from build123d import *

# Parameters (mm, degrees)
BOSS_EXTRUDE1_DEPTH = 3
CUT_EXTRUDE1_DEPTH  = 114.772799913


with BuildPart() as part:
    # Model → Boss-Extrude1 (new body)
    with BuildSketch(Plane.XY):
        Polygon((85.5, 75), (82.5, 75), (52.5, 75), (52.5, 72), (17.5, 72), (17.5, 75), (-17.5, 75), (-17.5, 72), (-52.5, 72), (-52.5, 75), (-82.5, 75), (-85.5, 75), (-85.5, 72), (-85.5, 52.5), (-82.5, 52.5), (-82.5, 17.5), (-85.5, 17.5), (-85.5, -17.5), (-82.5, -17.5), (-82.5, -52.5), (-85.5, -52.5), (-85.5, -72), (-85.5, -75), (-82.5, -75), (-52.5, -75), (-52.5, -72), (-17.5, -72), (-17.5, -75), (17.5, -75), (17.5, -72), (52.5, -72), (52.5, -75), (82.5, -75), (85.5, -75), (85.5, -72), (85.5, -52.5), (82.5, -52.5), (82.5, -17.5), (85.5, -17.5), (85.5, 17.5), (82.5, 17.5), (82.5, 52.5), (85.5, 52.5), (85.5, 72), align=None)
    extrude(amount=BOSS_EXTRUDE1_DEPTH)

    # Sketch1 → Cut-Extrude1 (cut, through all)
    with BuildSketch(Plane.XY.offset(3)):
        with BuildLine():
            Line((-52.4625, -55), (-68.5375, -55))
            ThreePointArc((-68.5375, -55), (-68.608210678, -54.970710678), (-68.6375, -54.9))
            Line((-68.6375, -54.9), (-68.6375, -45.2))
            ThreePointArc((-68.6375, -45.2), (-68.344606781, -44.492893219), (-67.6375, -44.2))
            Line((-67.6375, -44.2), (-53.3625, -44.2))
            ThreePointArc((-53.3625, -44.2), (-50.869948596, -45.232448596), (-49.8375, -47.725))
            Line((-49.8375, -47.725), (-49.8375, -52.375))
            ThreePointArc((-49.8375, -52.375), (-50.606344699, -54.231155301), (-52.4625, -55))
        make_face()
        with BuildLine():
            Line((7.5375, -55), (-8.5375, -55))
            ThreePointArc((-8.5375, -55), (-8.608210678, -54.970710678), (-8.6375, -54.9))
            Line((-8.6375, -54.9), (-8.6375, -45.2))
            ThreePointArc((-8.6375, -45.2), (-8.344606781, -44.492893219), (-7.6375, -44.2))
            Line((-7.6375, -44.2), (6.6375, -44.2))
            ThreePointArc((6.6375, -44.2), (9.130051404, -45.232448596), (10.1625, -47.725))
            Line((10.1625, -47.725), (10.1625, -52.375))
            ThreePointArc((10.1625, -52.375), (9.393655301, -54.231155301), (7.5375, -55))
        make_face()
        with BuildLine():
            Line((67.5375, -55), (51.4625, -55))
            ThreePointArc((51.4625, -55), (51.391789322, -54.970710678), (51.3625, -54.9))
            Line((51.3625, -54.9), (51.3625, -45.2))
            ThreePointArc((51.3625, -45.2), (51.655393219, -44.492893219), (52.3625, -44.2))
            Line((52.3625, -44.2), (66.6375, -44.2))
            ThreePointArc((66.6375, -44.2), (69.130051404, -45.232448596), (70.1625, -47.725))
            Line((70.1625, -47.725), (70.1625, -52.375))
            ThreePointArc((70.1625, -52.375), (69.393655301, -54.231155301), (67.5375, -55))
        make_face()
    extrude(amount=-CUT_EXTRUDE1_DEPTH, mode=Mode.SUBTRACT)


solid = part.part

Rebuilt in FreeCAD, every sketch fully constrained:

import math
import FreeCAD as App
import Part
import Sketcher
Q = App.Units.Quantity

doc = App.newDocument("Part")
body = doc.addObject("PartDesign::Body", "Body")

# Sketch on XY plane
sketch1 = body.newObject("Sketcher::SketchObject", "Sketch")
sketch1.AttachmentSupport = (doc.getObject("XY_Plane"), [""])
sketch1.MapMode = "FlatFace"
sketch1.addGeometry(Part.LineSegment(App.Vector(85.5, 75, 0), App.Vector(52.5, 75, 0)), False)
sketch1.addGeometry(Part.LineSegment(App.Vector(52.5, 75, 0), App.Vector(52.5, 72, 0)), False)
sketch1.addGeometry(Part.LineSegment(App.Vector(52.5, 72, 0), App.Vector(17.5, 72, 0)), False)
sketch1.addGeometry(Part.LineSegment(App.Vector(17.5, 72, 0), App.Vector(17.5, 75, 0)), False)
sketch1.addGeometry(Part.LineSegment(App.Vector(17.5, 75, 0), App.Vector(-17.5, 75, 0)), False)
sketch1.addGeometry(Part.LineSegment(App.Vector(-17.5, 75, 0), App.Vector(-17.5, 72, 0)), False)
sketch1.addGeometry(Part.LineSegment(App.Vector(-17.5, 72, 0), App.Vector(-52.5, 72, 0)), False)
sketch1.addGeometry(Part.LineSegment(App.Vector(-52.5, 72, 0), App.Vector(-52.5, 75, 0)), False)
sketch1.addGeometry(Part.LineSegment(App.Vector(-52.5, 75, 0), App.Vector(-85.5, 75, 0)), False)
sketch1.addGeometry(Part.LineSegment(App.Vector(-85.5, 75, 0), App.Vector(-85.5, 52.5, 0)), False)
sketch1.addGeometry(Part.LineSegment(App.Vector(-85.5, 52.5, 0), App.Vector(-82.5, 52.5, 0)), False)
sketch1.addGeometry(Part.LineSegment(App.Vector(-82.5, 52.5, 0), App.Vector(-82.5, 17.5, 0)), False)
sketch1.addGeometry(Part.LineSegment(App.Vector(-82.5, 17.5, 0), App.Vector(-85.5, 17.5, 0)), False)
sketch1.addGeometry(Part.LineSegment(App.Vector(-85.5, 17.5, 0), App.Vector(-85.5, -17.5, 0)), False)
sketch1.addGeometry(Part.LineSegment(App.Vector(-85.5, -17.5, 0), App.Vector(-82.5, -17.5, 0)), False)
sketch1.addGeometry(Part.LineSegment(App.Vector(-82.5, -17.5, 0), App.Vector(-82.5, -52.5, 0)), False)
sketch1.addGeometry(Part.LineSegment(App.Vector(-82.5, -52.5, 0), App.Vector(-85.5, -52.5, 0)), False)
sketch1.addGeometry(Part.LineSegment(App.Vector(-85.5, -52.5, 0), App.Vector(-85.5, -75, 0)), False)
sketch1.addGeometry(Part.LineSegment(App.Vector(-85.5, -75, 0), App.Vector(-52.5, -75, 0)), False)
sketch1.addGeometry(Part.LineSegment(App.Vector(-52.5, -75, 0), App.Vector(-52.5, -72, 0)), False)
sketch1.addGeometry(Part.LineSegment(App.Vector(-52.5, -72, 0), App.Vector(-17.5, -72, 0)), False)
sketch1.addGeometry(Part.LineSegment(App.Vector(-17.5, -72, 0), App.Vector(-17.5, -75, 0)), False)
sketch1.addGeometry(Part.LineSegment(App.Vector(-17.5, -75, 0), App.Vector(17.5, -75, 0)), False)
sketch1.addGeometry(Part.LineSegment(App.Vector(17.5, -75, 0), App.Vector(17.5, -72, 0)), False)
sketch1.addGeometry(Part.LineSegment(App.Vector(17.5, -72, 0), App.Vector(52.5, -72, 0)), False)
sketch1.addGeometry(Part.LineSegment(App.Vector(52.5, -72, 0), App.Vector(52.5, -75, 0)), False)
sketch1.addGeometry(Part.LineSegment(App.Vector(52.5, -75, 0), App.Vector(85.5, -75, 0)), False)
sketch1.addGeometry(Part.LineSegment(App.Vector(85.5, -75, 0), App.Vector(85.5, -52.5, 0)), False)
sketch1.addGeometry(Part.LineSegment(App.Vector(85.5, -52.5, 0), App.Vector(82.5, -52.5, 0)), False)
sketch1.addGeometry(Part.LineSegment(App.Vector(82.5, -52.5, 0), App.Vector(82.5, -17.5, 0)), False)
sketch1.addGeometry(Part.LineSegment(App.Vector(82.5, -17.5, 0), App.Vector(85.5, -17.5, 0)), False)
sketch1.addGeometry(Part.LineSegment(App.Vector(85.5, -17.5, 0), App.Vector(85.5, 17.5, 0)), False)
sketch1.addGeometry(Part.LineSegment(App.Vector(85.5, 17.5, 0), App.Vector(82.5, 17.5, 0)), False)
sketch1.addGeometry(Part.LineSegment(App.Vector(82.5, 17.5, 0), App.Vector(82.5, 52.5, 0)), False)
sketch1.addGeometry(Part.LineSegment(App.Vector(82.5, 52.5, 0), App.Vector(85.5, 52.5, 0)), False)
sketch1.addGeometry(Part.LineSegment(App.Vector(85.5, 52.5, 0), App.Vector(85.5, 75, 0)), False)
sketch1.addConstraint(Sketcher.Constraint("Coincident", 0, 2, 1, 1))
sketch1.addConstraint(Sketcher.Constraint("Coincident", 1, 2, 2, 1))
sketch1.addConstraint(Sketcher.Constraint("Coincident", 2, 2, 3, 1))
sketch1.addConstraint(Sketcher.Constraint("Coincident", 3, 2, 4, 1))
sketch1.addConstraint(Sketcher.Constraint("Coincident", 4, 2, 5, 1))
sketch1.addConstraint(Sketcher.Constraint("Coincident", 5, 2, 6, 1))
sketch1.addConstraint(Sketcher.Constraint("Coincident", 6, 2, 7, 1))
sketch1.addConstraint(Sketcher.Constraint("Coincident", 7, 2, 8, 1))
sketch1.addConstraint(Sketcher.Constraint("Coincident", 8, 2, 9, 1))
sketch1.addConstraint(Sketcher.Constraint("Coincident", 9, 2, 10, 1))
sketch1.addConstraint(Sketcher.Constraint("Coincident", 10, 2, 11, 1))
sketch1.addConstraint(Sketcher.Constraint("Coincident", 11, 2, 12, 1))
sketch1.addConstraint(Sketcher.Constraint("Coincident", 12, 2, 13, 1))
sketch1.addConstraint(Sketcher.Constraint("Coincident", 13, 2, 14, 1))
sketch1.addConstraint(Sketcher.Constraint("Coincident", 14, 2, 15, 1))
sketch1.addConstraint(Sketcher.Constraint("Coincident", 15, 2, 16, 1))
sketch1.addConstraint(Sketcher.Constraint("Coincident", 16, 2, 17, 1))
sketch1.addConstraint(Sketcher.Constraint("Coincident", 17, 2, 18, 1))
sketch1.addConstraint(Sketcher.Constraint("Coincident", 18, 2, 19, 1))
sketch1.addConstraint(Sketcher.Constraint("Coincident", 19, 2, 20, 1))
sketch1.addConstraint(Sketcher.Constraint("Coincident", 20, 2, 21, 1))
sketch1.addConstraint(Sketcher.Constraint("Coincident", 21, 2, 22, 1))
sketch1.addConstraint(Sketcher.Constraint("Coincident", 22, 2, 23, 1))
sketch1.addConstraint(Sketcher.Constraint("Coincident", 23, 2, 24, 1))
sketch1.addConstraint(Sketcher.Constraint("Coincident", 24, 2, 25, 1))
sketch1.addConstraint(Sketcher.Constraint("Coincident", 25, 2, 26, 1))
sketch1.addConstraint(Sketcher.Constraint("Coincident", 26, 2, 27, 1))
sketch1.addConstraint(Sketcher.Constraint("Coincident", 27, 2, 28, 1))
sketch1.addConstraint(Sketcher.Constraint("Coincident", 28, 2, 29, 1))
sketch1.addConstraint(Sketcher.Constraint("Coincident", 29, 2, 30, 1))
sketch1.addConstraint(Sketcher.Constraint("Coincident", 30, 2, 31, 1))
sketch1.addConstraint(Sketcher.Constraint("Coincident", 31, 2, 32, 1))
sketch1.addConstraint(Sketcher.Constraint("Coincident", 32, 2, 33, 1))
sketch1.addConstraint(Sketcher.Constraint("Coincident", 33, 2, 34, 1))
sketch1.addConstraint(Sketcher.Constraint("Coincident", 34, 2, 35, 1))
sketch1.addConstraint(Sketcher.Constraint("Coincident", 35, 2, 0, 1))
sketch1.addConstraint(Sketcher.Constraint("Horizontal", 0))
sketch1.addConstraint(Sketcher.Constraint("Vertical", 1))
sketch1.addConstraint(Sketcher.Constraint("Horizontal", 2))
sketch1.addConstraint(Sketcher.Constraint("Vertical", 3))
sketch1.addConstraint(Sketcher.Constraint("Horizontal", 4))
sketch1.addConstraint(Sketcher.Constraint("Vertical", 5))
sketch1.addConstraint(Sketcher.Constraint("Horizontal", 6))
sketch1.addConstraint(Sketcher.Constraint("Vertical", 7))
sketch1.addConstraint(Sketcher.Constraint("Horizontal", 8))
sketch1.addConstraint(Sketcher.Constraint("Vertical", 9))
sketch1.addConstraint(Sketcher.Constraint("Horizontal", 10))
sketch1.addConstraint(Sketcher.Constraint("Vertical", 11))
sketch1.addConstraint(Sketcher.Constraint("Horizontal", 12))
sketch1.addConstraint(Sketcher.Constraint("Vertical", 13))
sketch1.addConstraint(Sketcher.Constraint("Horizontal", 14))
sketch1.addConstraint(Sketcher.Constraint("Vertical", 15))
sketch1.addConstraint(Sketcher.Constraint("Horizontal", 16))
sketch1.addConstraint(Sketcher.Constraint("Vertical", 17))
sketch1.addConstraint(Sketcher.Constraint("Horizontal", 18))
sketch1.addConstraint(Sketcher.Constraint("Vertical", 19))
sketch1.addConstraint(Sketcher.Constraint("Horizontal", 20))
sketch1.addConstraint(Sketcher.Constraint("Vertical", 21))
sketch1.addConstraint(Sketcher.Constraint("Horizontal", 22))
sketch1.addConstraint(Sketcher.Constraint("Vertical", 23))
sketch1.addConstraint(Sketcher.Constraint("Horizontal", 24))
sketch1.addConstraint(Sketcher.Constraint("Vertical", 25))
sketch1.addConstraint(Sketcher.Constraint("Horizontal", 26))
sketch1.addConstraint(Sketcher.Constraint("Vertical", 27))
sketch1.addConstraint(Sketcher.Constraint("Horizontal", 28))
sketch1.addConstraint(Sketcher.Constraint("Vertical", 29))
sketch1.addConstraint(Sketcher.Constraint("Horizontal", 30))
sketch1.addConstraint(Sketcher.Constraint("Vertical", 31))
sketch1.addConstraint(Sketcher.Constraint("Horizontal", 32))
sketch1.addConstraint(Sketcher.Constraint("Vertical", 33))
sketch1.addConstraint(Sketcher.Constraint("Horizontal", 34))
sketch1.addConstraint(Sketcher.Constraint("Vertical", 35))
sketch1.addConstraint(Sketcher.Constraint("Symmetric", 0, 2, 18, 2, -1, 1))
sketch1.addConstraint(Sketcher.Constraint("Symmetric", 2, 2, 20, 2, -1, 1))
sketch1.addConstraint(Sketcher.Constraint("Symmetric", 4, 2, 22, 2, -1, 1))
sketch1.addConstraint(Sketcher.Constraint("Symmetric", 6, 2, 24, 2, -1, 1))
sketch1.addConstraint(Sketcher.Constraint("Symmetric", 8, 2, 26, 2, -1, 1))
sketch1.addConstraint(Sketcher.Constraint("Symmetric", 10, 2, 28, 2, -1, 1))
sketch1.addConstraint(Sketcher.Constraint("Symmetric", 12, 2, 30, 2, -1, 1))
sketch1.addConstraint(Sketcher.Constraint("Symmetric", 14, 2, 32, 2, -1, 1))
sketch1.addConstraint(Sketcher.Constraint("Symmetric", 16, 2, 34, 2, -1, 1))
sketch1.addConstraint(Sketcher.Constraint("Symmetric", 2, 2, 5, 2, -2))
sketch1.addConstraint(Sketcher.Constraint("Symmetric", 0, 2, 7, 2, -2))
sketch1.addConstraint(Sketcher.Constraint("Symmetric", 16, 2, 27, 2, -2))
sketch1.addConstraint(Sketcher.Constraint("Symmetric", 14, 2, 29, 2, -2))
sketch1.addConstraint(Sketcher.Constraint("Horizontal", 0, 2, 3, 2))
sketch1.addConstraint(Sketcher.Constraint("Vertical", 9, 2, 12, 2))
sketch1.addConstraint(Sketcher.Constraint("Equal", 2, 4))
sketch1.addConstraint(Sketcher.Constraint("Equal", 34, 1))
sketch1.addConstraint(Sketcher.Constraint("Equal", 24, 11))
sketch1.addConstraint(Sketcher.Constraint("Equal", 11, 13))
sketch1.addConstraint(Sketcher.Constraint("DistanceX", 0, 2, 0, 1, Q("33 mm")))
sketch1.addConstraint(Sketcher.Constraint("DistanceX", 2, 2, 2, 1, Q("35 mm")))
sketch1.addConstraint(Sketcher.Constraint("DistanceX", 10, 1, 10, 2, Q("3 mm")))
sketch1.addConstraint(Sketcher.Constraint("DistanceY", 9, 2, 9, 1, Q("22.5 mm")))
pad1 = body.newObject("PartDesign::Pad", "Pad")
pad1.Profile = sketch1
pad1.Length = 3

# Sketch on XY plane
sketch2 = body.newObject("Sketcher::SketchObject", "Sketch001")
sketch2.AttachmentSupport = (doc.getObject("XY_Plane"), [""])
sketch2.MapMode = "FlatFace"
sketch2.AttachmentOffset = App.Placement(App.Vector(0, 0, 3), App.Rotation())
sketch2.addGeometry(Part.LineSegment(App.Vector(-68.54, -55, 0), App.Vector(-52.46, -55, 0)), False)
sketch2.addGeometry(Part.ArcOfCircle(Part.Circle(App.Vector(-52.46, -52.38, 0), App.Vector(0, 0, 1), 2.62), math.radians(-90), math.radians(0)), False)
sketch2.addGeometry(Part.LineSegment(App.Vector(-49.84, -52.38, 0), App.Vector(-49.84, -47.73, 0)), False)
sketch2.addGeometry(Part.ArcOfCircle(Part.Circle(App.Vector(-53.36, -47.72, 0), App.Vector(0, 0, 1), 3.52), math.radians(0), math.radians(90)), False)
sketch2.addGeometry(Part.LineSegment(App.Vector(-53.36, -44.2, 0), App.Vector(-67.64, -44.2, 0)), False)
sketch2.addGeometry(Part.ArcOfCircle(Part.Circle(App.Vector(-67.64, -45.2, 0), App.Vector(0, 0, 1), 1), math.radians(90), math.radians(180)), False)
sketch2.addGeometry(Part.LineSegment(App.Vector(-68.64, -45.2, 0), App.Vector(-68.64, -54.9, 0)), False)
sketch2.addGeometry(Part.ArcOfCircle(Part.Circle(App.Vector(-68.54, -54.9, 0), App.Vector(0, 0, 1), 0.1), math.radians(180), math.radians(270)), False)
sketch2.addGeometry(Part.LineSegment(App.Vector(-8.54, -55, 0), App.Vector(7.54, -55, 0)), False)
sketch2.addGeometry(Part.ArcOfCircle(Part.Circle(App.Vector(7.54, -52.38, 0), App.Vector(0, 0, 1), 2.62), math.radians(-90), math.radians(0)), False)
sketch2.addGeometry(Part.LineSegment(App.Vector(10.16, -52.38, 0), App.Vector(10.16, -47.73, 0)), False)
sketch2.addGeometry(Part.ArcOfCircle(Part.Circle(App.Vector(6.64, -47.72, 0), App.Vector(0, 0, 1), 3.52), math.radians(0), math.radians(90)), False)
sketch2.addGeometry(Part.LineSegment(App.Vector(6.64, -44.2, 0), App.Vector(-7.64, -44.2, 0)), False)
sketch2.addGeometry(Part.ArcOfCircle(Part.Circle(App.Vector(-7.64, -45.2, 0), App.Vector(0, 0, 1), 1), math.radians(90), math.radians(180)), False)
sketch2.addGeometry(Part.LineSegment(App.Vector(-8.64, -45.2, 0), App.Vector(-8.64, -54.9, 0)), False)
sketch2.addGeometry(Part.ArcOfCircle(Part.Circle(App.Vector(-8.54, -54.9, 0), App.Vector(0, 0, 1), 0.1), math.radians(180), math.radians(270)), False)
sketch2.addGeometry(Part.LineSegment(App.Vector(51.46, -55, 0), App.Vector(67.54, -55, 0)), False)
sketch2.addGeometry(Part.ArcOfCircle(Part.Circle(App.Vector(67.54, -52.38, 0), App.Vector(0, 0, 1), 2.62), math.radians(-90), math.radians(0)), False)
sketch2.addGeometry(Part.LineSegment(App.Vector(70.16, -52.38, 0), App.Vector(70.16, -47.73, 0)), False)
sketch2.addGeometry(Part.ArcOfCircle(Part.Circle(App.Vector(66.64, -47.72, 0), App.Vector(0, 0, 1), 3.52), math.radians(0), math.radians(90)), False)
sketch2.addGeometry(Part.LineSegment(App.Vector(66.64, -44.2, 0), App.Vector(52.36, -44.2, 0)), False)
sketch2.addGeometry(Part.ArcOfCircle(Part.Circle(App.Vector(52.36, -45.2, 0), App.Vector(0, 0, 1), 1), math.radians(90), math.radians(180)), False)
sketch2.addGeometry(Part.LineSegment(App.Vector(51.36, -45.2, 0), App.Vector(51.36, -54.9, 0)), False)
sketch2.addGeometry(Part.ArcOfCircle(Part.Circle(App.Vector(51.46, -54.9, 0), App.Vector(0, 0, 1), 0.1), math.radians(180), math.radians(270)), False)
sketch2.addConstraint(Sketcher.Constraint("Tangent", 0, 2, 1, 1))
sketch2.addConstraint(Sketcher.Constraint("Tangent", 1, 2, 2, 1))
sketch2.addConstraint(Sketcher.Constraint("Tangent", 2, 2, 3, 1))
sketch2.addConstraint(Sketcher.Constraint("Tangent", 3, 2, 4, 1))
sketch2.addConstraint(Sketcher.Constraint("Tangent", 4, 2, 5, 1))
sketch2.addConstraint(Sketcher.Constraint("Tangent", 5, 2, 6, 1))
sketch2.addConstraint(Sketcher.Constraint("Tangent", 6, 2, 7, 1))
sketch2.addConstraint(Sketcher.Constraint("Tangent", 7, 2, 0, 1))
sketch2.addConstraint(Sketcher.Constraint("Tangent", 8, 2, 9, 1))
sketch2.addConstraint(Sketcher.Constraint("Tangent", 9, 2, 10, 1))
sketch2.addConstraint(Sketcher.Constraint("Tangent", 10, 2, 11, 1))
sketch2.addConstraint(Sketcher.Constraint("Tangent", 11, 2, 12, 1))
sketch2.addConstraint(Sketcher.Constraint("Tangent", 12, 2, 13, 1))
sketch2.addConstraint(Sketcher.Constraint("Tangent", 13, 2, 14, 1))
sketch2.addConstraint(Sketcher.Constraint("Tangent", 14, 2, 15, 1))
sketch2.addConstraint(Sketcher.Constraint("Tangent", 15, 2, 8, 1))
sketch2.addConstraint(Sketcher.Constraint("Tangent", 16, 2, 17, 1))
sketch2.addConstraint(Sketcher.Constraint("Tangent", 17, 2, 18, 1))
sketch2.addConstraint(Sketcher.Constraint("Tangent", 18, 2, 19, 1))
sketch2.addConstraint(Sketcher.Constraint("Tangent", 19, 2, 20, 1))
sketch2.addConstraint(Sketcher.Constraint("Tangent", 20, 2, 21, 1))
sketch2.addConstraint(Sketcher.Constraint("Tangent", 21, 2, 22, 1))
sketch2.addConstraint(Sketcher.Constraint("Tangent", 22, 2, 23, 1))
sketch2.addConstraint(Sketcher.Constraint("Tangent", 23, 2, 16, 1))
sketch2.addConstraint(Sketcher.Constraint("Horizontal", 0))
sketch2.addConstraint(Sketcher.Constraint("Vertical", 2))
sketch2.addConstraint(Sketcher.Constraint("Horizontal", 4))
sketch2.addConstraint(Sketcher.Constraint("Vertical", 6))
sketch2.addConstraint(Sketcher.Constraint("Horizontal", 8))
sketch2.addConstraint(Sketcher.Constraint("Vertical", 10))
sketch2.addConstraint(Sketcher.Constraint("Horizontal", 12))
sketch2.addConstraint(Sketcher.Constraint("Vertical", 14))
sketch2.addConstraint(Sketcher.Constraint("Horizontal", 16))
sketch2.addConstraint(Sketcher.Constraint("Vertical", 18))
sketch2.addConstraint(Sketcher.Constraint("Horizontal", 20))
sketch2.addConstraint(Sketcher.Constraint("Vertical", 22))
sketch2.addConstraint(Sketcher.Constraint("Equal", 1, 9))
sketch2.addConstraint(Sketcher.Constraint("Equal", 3, 11))
sketch2.addConstraint(Sketcher.Constraint("Equal", 5, 13))
sketch2.addConstraint(Sketcher.Constraint("Equal", 7, 15))
sketch2.addConstraint(Sketcher.Constraint("Equal", 9, 17))
sketch2.addConstraint(Sketcher.Constraint("Equal", 11, 19))
sketch2.addConstraint(Sketcher.Constraint("Equal", 13, 21))
sketch2.addConstraint(Sketcher.Constraint("Equal", 15, 23))
sketch2.addConstraint(Sketcher.Constraint("Horizontal", 1, 3, 9, 3))
sketch2.addConstraint(Sketcher.Constraint("Horizontal", 3, 3, 11, 3))
sketch2.addConstraint(Sketcher.Constraint("Horizontal", 9, 3, 17, 3))
sketch2.addConstraint(Sketcher.Constraint("Horizontal", 11, 3, 19, 3))
sketch2.addConstraint(Sketcher.Constraint("Equal", 0, 8))
sketch2.addConstraint(Sketcher.Constraint("Equal", 8, 16))
sketch2.addConstraint(Sketcher.Constraint("Radius", 5, Q("1 mm")))
sketch2.addConstraint(Sketcher.Constraint("Radius", 7, Q("0.1 mm")))
sketch2.addConstraint(Sketcher.Constraint("DistanceY", 6, 2, 6, 1, Q("9.7 mm")))
sketch2.addConstraint(Sketcher.Constraint("DistanceY", 0, 2, -1, 1, Q("55 mm")))
sketch2.addConstraint(Sketcher.Constraint("Radius", 1, Q("2.625 mm")))
sketch2.addConstraint(Sketcher.Constraint("Radius", 3, Q("3.525 mm")))
sketch2.addConstraint(Sketcher.Constraint("DistanceX", 1, 3, 9, 3, Q("60 mm")))
sketch2.addConstraint(Sketcher.Constraint("DistanceX", 9, 3, 17, 3, Q("60 mm")))
sketch2.addConstraint(Sketcher.Constraint("DistanceX", 7, 3, 1, 2, Q("18.7 mm")))
sketch2.addConstraint(Sketcher.Constraint("DistanceX", 1, 3, -1, 1, Q("52.4625 mm")))
pocket1 = body.newObject("PartDesign::Pocket", "Pocket")
pocket1.Profile = sketch2
pocket1.Type = "ThroughAll"

doc.recompute()
